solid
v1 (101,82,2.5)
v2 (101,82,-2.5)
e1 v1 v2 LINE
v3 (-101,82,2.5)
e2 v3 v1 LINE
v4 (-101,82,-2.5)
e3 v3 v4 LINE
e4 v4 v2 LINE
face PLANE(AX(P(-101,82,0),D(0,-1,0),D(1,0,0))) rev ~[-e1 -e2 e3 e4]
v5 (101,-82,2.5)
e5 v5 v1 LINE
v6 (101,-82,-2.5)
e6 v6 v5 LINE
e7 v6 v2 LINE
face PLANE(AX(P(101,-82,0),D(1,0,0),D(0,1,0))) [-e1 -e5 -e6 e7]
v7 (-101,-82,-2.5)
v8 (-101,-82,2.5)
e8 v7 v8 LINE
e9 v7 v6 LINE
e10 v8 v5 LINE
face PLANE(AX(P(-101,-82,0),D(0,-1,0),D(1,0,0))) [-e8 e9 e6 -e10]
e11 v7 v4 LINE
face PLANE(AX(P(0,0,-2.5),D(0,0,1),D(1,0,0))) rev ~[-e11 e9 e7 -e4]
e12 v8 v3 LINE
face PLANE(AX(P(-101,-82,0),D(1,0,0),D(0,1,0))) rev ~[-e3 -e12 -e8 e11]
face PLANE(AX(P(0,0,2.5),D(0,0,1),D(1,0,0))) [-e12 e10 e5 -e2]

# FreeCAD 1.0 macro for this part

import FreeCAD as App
import Part
import Sketcher
Q = App.Units.Quantity

doc = App.newDocument("Part")
params = doc.addObject("Spreadsheet::Sheet", "Params")
for row, (alias, value) in enumerate([
    ("sketch1_width", "202 mm"),
    ("sketch1_height", "164 mm"),
    ("pad1_length", "5 mm"),
], start=1):
    params.set(f"A{row}", alias)
    params.set(f"B{row}", "=" + value)
    params.setAlias(f"B{row}", alias)

body = doc.addObject("PartDesign::Body", "Body")

# Sketch on XY plane
sketch1 = body.newObject("Sketcher::SketchObject", "Sketch")
sketch1.AttachmentSupport = (doc.getObject("XY_Plane"), [""])
sketch1.MapMode = "FlatFace"
sketch1.addGeometry([
    Part.LineSegment(App.Vector(-101, 82, 0), App.Vector(-101, -82, 0)),
    Part.LineSegment(App.Vector(-101, -82, 0), App.Vector(101, -82, 0)),
    Part.LineSegment(App.Vector(101, -82, 0), App.Vector(101, 82, 0)),
    Part.LineSegment(App.Vector(101, 82, 0), App.Vector(-101, 82, 0)),
], False)
sketch1.addConstraint([
    Sketcher.Constraint("Coincident", 0, 2, 1, 1),
    Sketcher.Constraint("Coincident", 1, 2, 2, 1),
    Sketcher.Constraint("Coincident", 2, 2, 3, 1),
    Sketcher.Constraint("Coincident", 3, 2, 0, 1),
    Sketcher.Constraint("Vertical", 0),
    Sketcher.Constraint("Horizontal", 1),
    Sketcher.Constraint("Vertical", 2),
    Sketcher.Constraint("Horizontal", 3),
    Sketcher.Constraint("Symmetric", 0, 2, 2, 2, -1, 1),
    Sketcher.Constraint("DistanceX", 1, 1, 1, 2, Q("202 mm")),
    Sketcher.Constraint("DistanceY", 0, 2, 0, 1, Q("164 mm")),
])
sketch1.setExpression("Constraints[9]", "Params.sketch1_width")
sketch1.setExpression("Constraints[10]", "Params.sketch1_height")
pad1 = body.newObject("PartDesign::Pad", "Pad")
pad1.Profile = sketch1
pad1.setExpression("Length", "Params.pad1_length")
pad1.Midplane = True

doc.recompute()
